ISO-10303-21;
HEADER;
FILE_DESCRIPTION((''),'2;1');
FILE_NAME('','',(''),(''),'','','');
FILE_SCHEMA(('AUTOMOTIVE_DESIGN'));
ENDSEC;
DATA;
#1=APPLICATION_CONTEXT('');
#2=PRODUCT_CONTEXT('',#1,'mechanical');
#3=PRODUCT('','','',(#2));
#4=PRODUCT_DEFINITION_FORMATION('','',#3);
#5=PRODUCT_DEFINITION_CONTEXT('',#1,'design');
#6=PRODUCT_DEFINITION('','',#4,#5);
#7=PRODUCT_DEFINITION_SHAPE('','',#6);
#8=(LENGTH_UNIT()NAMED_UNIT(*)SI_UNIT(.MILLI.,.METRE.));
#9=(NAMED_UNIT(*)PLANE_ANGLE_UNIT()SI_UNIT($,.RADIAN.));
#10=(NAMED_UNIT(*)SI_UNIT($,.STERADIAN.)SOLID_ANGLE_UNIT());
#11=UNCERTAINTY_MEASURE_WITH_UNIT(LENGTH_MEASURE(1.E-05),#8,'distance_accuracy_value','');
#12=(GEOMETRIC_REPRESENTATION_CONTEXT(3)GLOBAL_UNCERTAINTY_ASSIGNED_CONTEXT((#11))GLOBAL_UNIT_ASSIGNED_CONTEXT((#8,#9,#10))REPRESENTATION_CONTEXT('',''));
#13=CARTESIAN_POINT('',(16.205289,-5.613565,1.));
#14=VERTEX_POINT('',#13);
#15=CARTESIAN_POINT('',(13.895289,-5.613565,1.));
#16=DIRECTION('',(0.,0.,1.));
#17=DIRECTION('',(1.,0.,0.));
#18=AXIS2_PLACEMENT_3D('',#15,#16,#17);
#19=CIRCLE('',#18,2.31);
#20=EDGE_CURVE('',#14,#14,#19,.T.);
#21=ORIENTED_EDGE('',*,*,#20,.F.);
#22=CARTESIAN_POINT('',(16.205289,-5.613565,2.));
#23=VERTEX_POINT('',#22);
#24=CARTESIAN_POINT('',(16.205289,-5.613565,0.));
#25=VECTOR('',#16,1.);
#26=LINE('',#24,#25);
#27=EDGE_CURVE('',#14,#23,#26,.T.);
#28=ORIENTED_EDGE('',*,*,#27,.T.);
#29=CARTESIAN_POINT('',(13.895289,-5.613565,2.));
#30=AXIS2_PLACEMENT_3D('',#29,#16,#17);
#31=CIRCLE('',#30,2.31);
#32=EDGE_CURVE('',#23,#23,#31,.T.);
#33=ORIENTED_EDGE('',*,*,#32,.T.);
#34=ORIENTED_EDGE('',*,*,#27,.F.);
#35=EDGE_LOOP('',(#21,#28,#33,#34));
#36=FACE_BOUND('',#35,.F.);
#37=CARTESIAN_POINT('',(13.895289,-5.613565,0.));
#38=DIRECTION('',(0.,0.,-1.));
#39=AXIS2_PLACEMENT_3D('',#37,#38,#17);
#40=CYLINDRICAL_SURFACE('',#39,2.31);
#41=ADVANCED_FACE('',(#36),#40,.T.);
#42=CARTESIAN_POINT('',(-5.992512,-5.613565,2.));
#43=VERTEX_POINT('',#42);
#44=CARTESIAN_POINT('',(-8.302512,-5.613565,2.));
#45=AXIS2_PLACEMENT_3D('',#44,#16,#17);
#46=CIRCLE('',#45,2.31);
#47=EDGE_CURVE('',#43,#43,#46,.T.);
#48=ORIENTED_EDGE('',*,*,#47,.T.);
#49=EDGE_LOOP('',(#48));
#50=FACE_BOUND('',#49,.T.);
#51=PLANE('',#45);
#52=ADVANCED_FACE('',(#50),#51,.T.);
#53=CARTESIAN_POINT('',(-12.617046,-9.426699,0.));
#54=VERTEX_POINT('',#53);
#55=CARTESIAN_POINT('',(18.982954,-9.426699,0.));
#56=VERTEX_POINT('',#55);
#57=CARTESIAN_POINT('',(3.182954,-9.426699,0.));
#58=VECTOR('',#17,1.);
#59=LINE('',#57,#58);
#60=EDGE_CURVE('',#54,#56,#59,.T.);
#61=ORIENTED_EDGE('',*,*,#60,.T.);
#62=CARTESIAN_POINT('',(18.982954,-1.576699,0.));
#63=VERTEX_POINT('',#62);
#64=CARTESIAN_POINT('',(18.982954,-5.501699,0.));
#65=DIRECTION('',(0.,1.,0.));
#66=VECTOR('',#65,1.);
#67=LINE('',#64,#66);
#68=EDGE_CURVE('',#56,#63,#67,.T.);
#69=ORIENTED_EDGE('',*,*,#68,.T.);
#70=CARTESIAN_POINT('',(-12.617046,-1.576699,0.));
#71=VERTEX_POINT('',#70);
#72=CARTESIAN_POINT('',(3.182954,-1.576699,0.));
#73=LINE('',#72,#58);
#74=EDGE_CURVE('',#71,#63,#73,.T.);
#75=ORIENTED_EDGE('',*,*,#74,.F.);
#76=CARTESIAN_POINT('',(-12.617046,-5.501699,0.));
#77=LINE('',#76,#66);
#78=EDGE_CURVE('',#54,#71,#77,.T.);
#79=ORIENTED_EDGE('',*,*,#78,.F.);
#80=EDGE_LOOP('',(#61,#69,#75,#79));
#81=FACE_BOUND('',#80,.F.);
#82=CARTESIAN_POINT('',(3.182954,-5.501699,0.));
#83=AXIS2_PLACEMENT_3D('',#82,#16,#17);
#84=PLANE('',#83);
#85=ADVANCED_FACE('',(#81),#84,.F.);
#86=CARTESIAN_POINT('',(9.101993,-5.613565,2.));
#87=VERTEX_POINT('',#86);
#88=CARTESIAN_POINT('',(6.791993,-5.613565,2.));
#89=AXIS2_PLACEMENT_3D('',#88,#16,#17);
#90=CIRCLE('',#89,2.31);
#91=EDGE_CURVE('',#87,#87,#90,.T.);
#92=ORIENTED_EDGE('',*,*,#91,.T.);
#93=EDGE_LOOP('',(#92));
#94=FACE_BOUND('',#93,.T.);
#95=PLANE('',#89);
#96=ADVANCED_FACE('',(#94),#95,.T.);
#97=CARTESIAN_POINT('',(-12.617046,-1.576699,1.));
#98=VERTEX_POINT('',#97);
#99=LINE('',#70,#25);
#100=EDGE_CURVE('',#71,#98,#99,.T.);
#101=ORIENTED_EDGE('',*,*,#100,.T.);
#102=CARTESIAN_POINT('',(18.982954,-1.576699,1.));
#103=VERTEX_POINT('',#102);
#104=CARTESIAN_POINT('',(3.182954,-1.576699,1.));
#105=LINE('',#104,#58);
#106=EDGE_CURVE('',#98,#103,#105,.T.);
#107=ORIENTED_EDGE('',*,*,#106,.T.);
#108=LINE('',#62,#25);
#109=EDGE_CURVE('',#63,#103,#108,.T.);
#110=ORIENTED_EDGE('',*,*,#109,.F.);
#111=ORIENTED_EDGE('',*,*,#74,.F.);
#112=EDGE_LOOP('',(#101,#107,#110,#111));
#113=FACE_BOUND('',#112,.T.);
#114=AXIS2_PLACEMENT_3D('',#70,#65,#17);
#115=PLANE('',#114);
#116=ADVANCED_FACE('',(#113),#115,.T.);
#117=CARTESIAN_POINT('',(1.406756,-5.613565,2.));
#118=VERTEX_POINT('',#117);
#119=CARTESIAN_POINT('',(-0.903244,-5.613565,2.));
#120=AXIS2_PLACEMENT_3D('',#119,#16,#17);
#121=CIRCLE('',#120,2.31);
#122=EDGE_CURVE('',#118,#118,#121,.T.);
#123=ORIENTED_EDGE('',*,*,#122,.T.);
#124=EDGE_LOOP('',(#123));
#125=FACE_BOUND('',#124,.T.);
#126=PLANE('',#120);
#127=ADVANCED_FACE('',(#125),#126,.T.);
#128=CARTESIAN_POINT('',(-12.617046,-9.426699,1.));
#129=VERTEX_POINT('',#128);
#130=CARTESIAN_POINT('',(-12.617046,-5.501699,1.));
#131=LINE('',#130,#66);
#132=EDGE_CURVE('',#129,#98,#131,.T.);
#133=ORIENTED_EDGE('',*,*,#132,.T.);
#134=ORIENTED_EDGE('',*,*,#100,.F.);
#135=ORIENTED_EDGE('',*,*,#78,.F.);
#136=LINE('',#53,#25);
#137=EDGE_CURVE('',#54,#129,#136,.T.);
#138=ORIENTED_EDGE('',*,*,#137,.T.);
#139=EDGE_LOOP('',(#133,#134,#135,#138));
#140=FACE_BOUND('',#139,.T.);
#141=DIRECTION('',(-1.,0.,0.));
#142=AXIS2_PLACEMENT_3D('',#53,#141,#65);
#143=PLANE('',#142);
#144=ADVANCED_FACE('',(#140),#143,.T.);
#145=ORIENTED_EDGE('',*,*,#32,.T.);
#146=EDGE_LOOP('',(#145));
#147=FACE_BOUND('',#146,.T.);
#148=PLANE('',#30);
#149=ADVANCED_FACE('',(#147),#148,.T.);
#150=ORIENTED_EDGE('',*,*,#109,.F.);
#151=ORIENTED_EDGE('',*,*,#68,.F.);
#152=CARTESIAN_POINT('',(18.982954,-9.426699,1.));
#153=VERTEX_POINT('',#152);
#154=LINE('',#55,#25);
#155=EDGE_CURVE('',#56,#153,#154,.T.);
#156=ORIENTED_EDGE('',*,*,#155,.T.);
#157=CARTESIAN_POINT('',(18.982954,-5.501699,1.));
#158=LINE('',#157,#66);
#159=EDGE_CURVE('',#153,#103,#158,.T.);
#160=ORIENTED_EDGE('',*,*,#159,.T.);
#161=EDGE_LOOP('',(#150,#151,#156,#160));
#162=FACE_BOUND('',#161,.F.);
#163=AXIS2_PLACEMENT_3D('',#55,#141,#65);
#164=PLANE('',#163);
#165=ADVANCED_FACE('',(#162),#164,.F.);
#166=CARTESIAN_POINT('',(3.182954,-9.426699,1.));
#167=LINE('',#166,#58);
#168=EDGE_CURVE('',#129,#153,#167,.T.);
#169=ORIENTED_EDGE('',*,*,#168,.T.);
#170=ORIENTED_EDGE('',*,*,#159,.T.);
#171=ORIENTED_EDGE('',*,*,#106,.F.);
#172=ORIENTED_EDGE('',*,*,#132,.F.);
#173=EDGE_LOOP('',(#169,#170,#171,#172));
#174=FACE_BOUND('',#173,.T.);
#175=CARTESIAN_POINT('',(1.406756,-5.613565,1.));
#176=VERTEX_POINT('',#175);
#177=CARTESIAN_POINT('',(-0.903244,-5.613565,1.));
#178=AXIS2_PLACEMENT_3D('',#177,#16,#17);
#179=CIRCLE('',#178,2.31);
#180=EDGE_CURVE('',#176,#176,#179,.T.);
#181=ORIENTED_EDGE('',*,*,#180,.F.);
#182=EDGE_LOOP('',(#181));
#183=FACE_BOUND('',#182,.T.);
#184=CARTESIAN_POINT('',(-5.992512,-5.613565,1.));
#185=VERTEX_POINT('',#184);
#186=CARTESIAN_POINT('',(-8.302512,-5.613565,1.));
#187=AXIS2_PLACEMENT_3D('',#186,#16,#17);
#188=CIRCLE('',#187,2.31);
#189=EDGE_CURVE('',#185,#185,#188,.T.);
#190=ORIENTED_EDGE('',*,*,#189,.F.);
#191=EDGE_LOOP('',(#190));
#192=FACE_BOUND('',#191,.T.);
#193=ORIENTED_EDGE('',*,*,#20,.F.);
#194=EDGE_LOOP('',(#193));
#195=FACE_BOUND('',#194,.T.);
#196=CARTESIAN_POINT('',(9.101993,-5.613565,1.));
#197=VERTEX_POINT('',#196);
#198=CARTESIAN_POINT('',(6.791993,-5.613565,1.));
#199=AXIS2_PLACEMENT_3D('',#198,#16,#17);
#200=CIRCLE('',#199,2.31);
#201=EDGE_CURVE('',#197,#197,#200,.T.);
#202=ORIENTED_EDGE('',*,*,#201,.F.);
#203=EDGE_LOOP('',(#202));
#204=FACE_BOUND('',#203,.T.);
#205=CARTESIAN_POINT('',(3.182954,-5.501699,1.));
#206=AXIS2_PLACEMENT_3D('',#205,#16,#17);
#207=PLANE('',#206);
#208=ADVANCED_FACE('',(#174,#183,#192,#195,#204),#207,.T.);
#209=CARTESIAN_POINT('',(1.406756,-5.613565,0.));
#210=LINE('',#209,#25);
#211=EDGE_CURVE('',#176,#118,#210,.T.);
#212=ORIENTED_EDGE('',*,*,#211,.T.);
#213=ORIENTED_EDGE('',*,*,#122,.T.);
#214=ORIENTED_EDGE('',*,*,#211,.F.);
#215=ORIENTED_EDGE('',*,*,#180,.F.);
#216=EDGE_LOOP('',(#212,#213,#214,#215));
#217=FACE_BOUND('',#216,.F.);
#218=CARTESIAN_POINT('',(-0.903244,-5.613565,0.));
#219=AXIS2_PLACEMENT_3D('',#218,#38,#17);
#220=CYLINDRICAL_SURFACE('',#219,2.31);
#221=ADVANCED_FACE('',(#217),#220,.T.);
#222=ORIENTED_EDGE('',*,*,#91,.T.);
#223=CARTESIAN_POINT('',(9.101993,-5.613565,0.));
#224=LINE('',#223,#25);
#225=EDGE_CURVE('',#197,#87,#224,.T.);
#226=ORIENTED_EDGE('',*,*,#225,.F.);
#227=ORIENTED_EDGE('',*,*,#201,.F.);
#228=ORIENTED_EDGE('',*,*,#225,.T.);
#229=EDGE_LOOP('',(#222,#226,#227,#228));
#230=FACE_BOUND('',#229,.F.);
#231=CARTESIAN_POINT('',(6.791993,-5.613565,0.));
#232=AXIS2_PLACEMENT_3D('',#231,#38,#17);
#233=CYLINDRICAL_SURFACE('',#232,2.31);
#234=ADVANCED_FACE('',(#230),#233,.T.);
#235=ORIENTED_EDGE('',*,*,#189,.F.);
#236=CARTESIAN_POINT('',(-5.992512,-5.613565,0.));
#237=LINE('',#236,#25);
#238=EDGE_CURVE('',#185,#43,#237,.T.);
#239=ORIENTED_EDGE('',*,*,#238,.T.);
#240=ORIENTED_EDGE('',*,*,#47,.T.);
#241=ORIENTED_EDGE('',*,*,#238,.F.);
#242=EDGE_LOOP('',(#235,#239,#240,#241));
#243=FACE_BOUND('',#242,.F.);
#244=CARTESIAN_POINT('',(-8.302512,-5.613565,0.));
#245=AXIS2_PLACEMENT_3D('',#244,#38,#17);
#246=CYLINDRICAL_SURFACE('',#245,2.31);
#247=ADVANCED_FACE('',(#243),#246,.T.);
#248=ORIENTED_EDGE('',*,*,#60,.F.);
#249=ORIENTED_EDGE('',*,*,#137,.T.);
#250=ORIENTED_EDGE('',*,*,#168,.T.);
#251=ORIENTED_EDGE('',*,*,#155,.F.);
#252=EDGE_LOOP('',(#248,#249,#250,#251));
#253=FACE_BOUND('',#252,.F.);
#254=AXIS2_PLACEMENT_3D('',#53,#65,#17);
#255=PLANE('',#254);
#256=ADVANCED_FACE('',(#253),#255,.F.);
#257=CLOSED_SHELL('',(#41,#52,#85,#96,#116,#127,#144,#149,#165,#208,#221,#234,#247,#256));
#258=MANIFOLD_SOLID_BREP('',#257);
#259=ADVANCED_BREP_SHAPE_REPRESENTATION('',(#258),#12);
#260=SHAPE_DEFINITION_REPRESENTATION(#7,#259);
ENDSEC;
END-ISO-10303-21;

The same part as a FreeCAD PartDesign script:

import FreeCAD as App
import Part
import Sketcher
from FreeCAD import Vector


def add_polygon(sketch, points):
    """Adds a closed chain of lines whose ends are joined by coincident constraints."""
    first, n = sketch.GeometryCount, len(points)
    for a, b in zip(points, points[1:] + points[:1]):
        sketch.addGeometry(Part.LineSegment(App.Vector(*a, 0), App.Vector(*b, 0)), False)
    for i in range(n):
        sketch.addConstraint(Sketcher.Constraint("Coincident", first + i, 2, first + (i + 1) % n, 1))

doc = App.newDocument("Part")
body = doc.addObject("PartDesign::Body", "Body")
body.AllowCompound = True

# Sketch on XY plane
sketch1 = body.newObject("Sketcher::SketchObject", "Sketch")
sketch1.AttachmentSupport = (doc.getObject("XY_Plane"), [""])
sketch1.MapMode = "FlatFace"
sketch1.addGeometry([
    Part.Circle(Vector(-8.3, -5.6, 0), Vector(0, 0, 1), 2.3),
    Part.Circle(Vector(-0.9, -5.6, 0), Vector(0, 0, 1), 2.3),
    Part.Circle(Vector(6.8, -5.6, 0), Vector(0, 0, 1), 2.3),
    Part.Circle(Vector(13.9, -5.6, 0), Vector(0, 0, 1), 2.3),
], False)
sketch1.addConstraint([
    Sketcher.Constraint("Equal", 0, 1),
    Sketcher.Constraint("Equal", 1, 2),
    Sketcher.Constraint("Equal", 2, 3),
    Sketcher.Constraint("Horizontal", 0, 3, 1, 3),
    Sketcher.Constraint("Horizontal", 1, 3, 2, 3),
    Sketcher.Constraint("Horizontal", 2, 3, 3, 3),
    Sketcher.Constraint("Diameter", 0, 4.62),
    Sketcher.Constraint("DistanceX", 0, 3, 3, 3, 22.197801),
    Sketcher.Constraint("DistanceX", -1, 1, 3, 3, 13.895289),
    Sketcher.Constraint("DistanceX", 0, 3, 1, 3, 7.399268),
    Sketcher.Constraint("DistanceY", 0, 3, -1, 1, 5.613565),
    Sketcher.Constraint("DistanceX", -1, 1, 2, 3, 6.791993),
])
pad1 = body.newObject("PartDesign::Pad", "Pad")
pad1.Profile = sketch1
pad1.Length = 2

# Sketch on XY plane
sketch2 = body.newObject("Sketcher::SketchObject", "Sketch001")
sketch2.AttachmentSupport = (doc.getObject("XY_Plane"), [""])
sketch2.MapMode = "FlatFace"
add_polygon(sketch2, [(-12.6, -1.6), (-12.6, -9.4), (19, -9.4), (19, -1.6)])  # lines 0-3
sketch2.addGeometry(Part.Circle(Vector(-8.3, -5.6, 0), Vector(0, 0, 1), 2.3), False)  # 4
sketch2.addGeometry(Part.Circle(Vector(-0.9, -5.6, 0), Vector(0, 0, 1), 2.3), False)  # 5
sketch2.addGeometry(Part.Circle(Vector(6.8, -5.6, 0), Vector(0, 0, 1), 2.3), False)  # 6
sketch2.addGeometry(Part.Circle(Vector(13.9, -5.6, 0), Vector(0, 0, 1), 2.3), False)  # 7
sketch2.addConstraint([
    Sketcher.Constraint("Vertical", 0),
    Sketcher.Constraint("Horizontal", 1),
    Sketcher.Constraint("Vertical", 2),
    Sketcher.Constraint("Horizontal", 3),
    Sketcher.Constraint("Equal", 4, 5),
    Sketcher.Constraint("Equal", 5, 6),
    Sketcher.Constraint("Equal", 6, 7),
    Sketcher.Constraint("Horizontal", 4, 3, 5, 3),
    Sketcher.Constraint("Horizontal", 5, 3, 6, 3),
    Sketcher.Constraint("Horizontal", 6, 3, 7, 3),
    Sketcher.Constraint("Diameter", 4, 4.62),
    Sketcher.Constraint("DistanceX", 1, 1, 1, 2, 31.6),
    Sketcher.Constraint("DistanceY", 0, 2, 0, 1, 7.85),
    Sketcher.Constraint("DistanceY", 0, 2, -1, 1, 9.426699),
    Sketcher.Constraint("DistanceX", 4, 3, 7, 3, 22.197801),
    Sketcher.Constraint("DistanceX", 0, 2, 5, 3, 11.713802),
    Sketcher.Constraint("DistanceX", -1, 1, 7, 3, 13.895289),
    Sketcher.Constraint("DistanceX", 4, 3, 5, 3, 7.399268),
    Sketcher.Constraint("DistanceX", 0, 2, 6, 3, 19.409039),
    Sketcher.Constraint("DistanceY", 4, 3, -1, 1, 5.613565),
])
pad2 = body.newObject("PartDesign::Pad", "Pad001")
pad2.Profile = sketch2
pad2.Length = 1

doc.recompute()
